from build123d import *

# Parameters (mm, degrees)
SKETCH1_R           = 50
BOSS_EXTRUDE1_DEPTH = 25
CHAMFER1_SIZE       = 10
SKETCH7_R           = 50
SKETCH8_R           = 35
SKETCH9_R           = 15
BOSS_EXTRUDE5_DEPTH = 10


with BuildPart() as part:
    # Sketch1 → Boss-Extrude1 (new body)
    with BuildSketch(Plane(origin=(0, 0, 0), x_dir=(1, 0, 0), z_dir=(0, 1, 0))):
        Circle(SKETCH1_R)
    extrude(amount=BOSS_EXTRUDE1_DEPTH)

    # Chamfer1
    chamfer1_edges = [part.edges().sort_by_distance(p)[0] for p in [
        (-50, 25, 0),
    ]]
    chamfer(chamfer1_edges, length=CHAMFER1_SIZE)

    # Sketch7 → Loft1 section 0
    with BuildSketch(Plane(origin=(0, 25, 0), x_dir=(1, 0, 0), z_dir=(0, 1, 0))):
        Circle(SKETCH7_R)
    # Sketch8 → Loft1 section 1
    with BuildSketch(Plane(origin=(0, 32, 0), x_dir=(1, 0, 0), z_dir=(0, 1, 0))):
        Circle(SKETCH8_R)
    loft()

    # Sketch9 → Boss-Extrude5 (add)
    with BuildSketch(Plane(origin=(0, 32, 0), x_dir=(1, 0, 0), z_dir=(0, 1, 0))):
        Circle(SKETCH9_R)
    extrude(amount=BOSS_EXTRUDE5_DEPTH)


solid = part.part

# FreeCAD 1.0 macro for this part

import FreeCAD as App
import Part
import Sketcher

V = App.Vector
Q = App.Units.Quantity


def edges_at(feature, points):
    """Names of the edges that pass closest to the given points."""
    edges = feature.Shape.Edges
    near = lambda p: min(range(len(edges)), key=lambda i: edges[i].distToShape(Part.Vertex(*p))[0])
    return sorted({f"Edge{near(p) + 1}" for p in points})

doc = App.newDocument("Part")
params = doc.addObject("Spreadsheet::Sheet", "Params")
for row, (alias, value) in enumerate([
    ("sketch1_diameter", "100 mm"),
    ("pad1_length", "25 mm"),
    ("chamfer_size", "10 mm"),
    ("sketch2_diameter", "100 mm"),
    ("sketch3_diameter", "70 mm"),
    ("sketch4_diameter", "30 mm"),
    ("pad2_length", "10 mm"),
], start=1):
    params.set(f"A{row}", alias)
    params.set(f"B{row}", "=" + value)
    params.setAlias(f"B{row}", alias)

body = doc.addObject("PartDesign::Body", "Body")

# Sketch on XZ plane
sketch1 = doc.addObject("Sketcher::SketchObject", "Sketch")
body.addObject(sketch1)
sketch1.AttachmentSupport = (doc.XZ_Plane, [""])
sketch1.MapMode = "FlatFace"
sketch1.addGeometry(Part.Circle(V(0, 0, 0), V(0, 0, 1), 50), False)
sketch1.addConstraint([
    Sketcher.Constraint("Coincident", 0, 3, -1, 1),
    Sketcher.Constraint("Diameter", 0, Q("100 mm")),
])
sketch1.setExpression("Constraints[1]", "Params.sketch1_diameter")
pad1 = doc.addObject("PartDesign::Pad", "Pad")
body.addObject(pad1)
pad1.Profile = sketch1
pad1.setExpression("Length", "Params.pad1_length")
pad1.Reversed = True
doc.recompute()

chamfer = doc.addObject("PartDesign::Chamfer", "Chamfer")
body.addObject(chamfer)
chamfer.Base = (pad1, edges_at(pad1, [(-50, 25, 0)]))
chamfer.setExpression("Size", "Params.chamfer_size")

# Sketch on XZ plane
sketch2 = doc.addObject("Sketcher::SketchObject", "Sketch001")
body.addObject(sketch2)
sketch2.AttachmentSupport = (doc.XZ_Plane, [""])
sketch2.MapMode = "FlatFace"
sketch2.AttachmentOffset = App.Placement(V(0, 0, -25), App.Rotation())
sketch2.addGeometry(Part.Circle(V(0, 0, 0), V(0, 0, 1), 50), False)
sketch2.addConstraint([
    Sketcher.Constraint("Coincident", 0, 3, -1, 1),
    Sketcher.Constraint("Diameter", 0, Q("100 mm")),
])
sketch2.setExpression("Constraints[1]", "Params.sketch2_diameter")

# Sketch on XZ plane
sketch3 = doc.addObject("Sketcher::SketchObject", "Sketch002")
body.addObject(sketch3)
sketch3.AttachmentSupport = (doc.XZ_Plane, [""])
sketch3.MapMode = "FlatFace"
sketch3.AttachmentOffset = App.Placement(V(0, 0, -32), App.Rotation())
sketch3.addGeometry(Part.Circle(V(0, 0, 0), V(0, 0, 1), 35), False)
sketch3.addConstraint([
    Sketcher.Constraint("Coincident", 0, 3, -1, 1),
    Sketcher.Constraint("Diameter", 0, Q("70 mm")),
])
sketch3.setExpression("Constraints[1]", "Params.sketch3_diameter")

additiveloft = doc.addObject("PartDesign::AdditiveLoft", "AdditiveLoft")
body.addObject(additiveloft)
additiveloft.Profile = sketch2
additiveloft.Sections = [sketch3]

# Sketch on XZ plane
sketch4 = doc.addObject("Sketcher::SketchObject", "Sketch003")
body.addObject(sketch4)
sketch4.AttachmentSupport = (doc.XZ_Plane, [""])
sketch4.MapMode = "FlatFace"
sketch4.AttachmentOffset = App.Placement(V(0, 0, -32), App.Rotation())
sketch4.addGeometry(Part.Circle(V(0, 0, 0), V(0, 0, 1), 15), False)
sketch4.addConstraint([
    Sketcher.Constraint("Coincident", 0, 3, -1, 1),
    Sketcher.Constraint("Diameter", 0, Q("30 mm")),
])
sketch4.setExpression("Constraints[1]", "Params.sketch4_diameter")
pad2 = doc.addObject("PartDesign::Pad", "Pad001")
body.addObject(pad2)
pad2.Profile = sketch4
pad2.setExpression("Length", "Params.pad2_length")
pad2.Reversed = True

doc.recompute()
